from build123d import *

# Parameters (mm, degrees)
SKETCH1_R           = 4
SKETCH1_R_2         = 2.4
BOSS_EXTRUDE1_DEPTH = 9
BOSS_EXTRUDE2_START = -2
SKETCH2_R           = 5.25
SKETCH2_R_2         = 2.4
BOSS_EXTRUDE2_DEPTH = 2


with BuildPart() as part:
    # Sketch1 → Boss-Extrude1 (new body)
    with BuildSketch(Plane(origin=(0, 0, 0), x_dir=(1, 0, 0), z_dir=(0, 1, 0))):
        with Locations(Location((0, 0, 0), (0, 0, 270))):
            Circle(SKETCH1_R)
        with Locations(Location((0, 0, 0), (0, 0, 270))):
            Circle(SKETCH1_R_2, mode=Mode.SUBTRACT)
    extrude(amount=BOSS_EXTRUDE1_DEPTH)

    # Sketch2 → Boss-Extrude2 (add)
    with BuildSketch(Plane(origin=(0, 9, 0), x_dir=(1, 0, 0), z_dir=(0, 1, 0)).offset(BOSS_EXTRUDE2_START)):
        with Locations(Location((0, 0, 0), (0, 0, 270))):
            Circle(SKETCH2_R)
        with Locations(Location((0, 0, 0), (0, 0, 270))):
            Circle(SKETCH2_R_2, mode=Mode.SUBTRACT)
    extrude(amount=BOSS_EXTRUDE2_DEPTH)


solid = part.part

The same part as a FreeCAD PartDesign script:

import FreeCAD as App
import Part
import Sketcher
from FreeCAD import Vector

doc = App.newDocument("Part")
body = doc.addObject("PartDesign::Body", "Body")

sketch1 = doc.addObject("Sketcher::SketchObject", "Sketch")
body.addObject(sketch1)
sketch1.AttachmentSupport = (doc.XZ_Plane, [""])
sketch1.MapMode = "FlatFace"
sketch1.addGeometry([
    Part.Circle(Vector(0, 0, 0), Vector(0, 0, 1), 4),
    Part.Circle(Vector(0, 0, 0), Vector(0, 0, 1), 2.4),
], False)
sketch1.addConstraint([
    Sketcher.Constraint("Coincident", 0, 3, -1, 1),
    Sketcher.Constraint("Coincident", 1, 3, -1, 1),
    Sketcher.Constraint("Diameter", 0, 8.0),
    Sketcher.Constraint("Diameter", 1, 4.8),
])
pad1 = doc.addObject("PartDesign::Pad", "Pad")
body.addObject(pad1)
pad1.Profile = sketch1
pad1.Length = 9
pad1.Reversed = True

sketch2 = doc.addObject("Sketcher::SketchObject", "Sketch001")
body.addObject(sketch2)
sketch2.AttachmentSupport = (doc.XZ_Plane, [""])
sketch2.MapMode = "FlatFace"
sketch2.AttachmentOffset = App.Placement(Vector(0, 0, -7), App.Rotation())
sketch2.addGeometry([
    Part.Circle(Vector(0, 0, 0), Vector(0, 0, 1), 5.25),
    Part.Circle(Vector(0, 0, 0), Vector(0, 0, 1), 2.4),
], False)
sketch2.addConstraint([
    Sketcher.Constraint("Coincident", 0, 3, -1, 1),
    Sketcher.Constraint("Coincident", 1, 3, -1, 1),
    Sketcher.Constraint("Diameter", 0, 10.5),
    Sketcher.Constraint("Diameter", 1, 4.8),
])
pad2 = doc.addObject("PartDesign::Pad", "Pad001")
body.addObject(pad2)
pad2.Profile = sketch2
pad2.Length = 2
pad2.Reversed = True

doc.recompute()
